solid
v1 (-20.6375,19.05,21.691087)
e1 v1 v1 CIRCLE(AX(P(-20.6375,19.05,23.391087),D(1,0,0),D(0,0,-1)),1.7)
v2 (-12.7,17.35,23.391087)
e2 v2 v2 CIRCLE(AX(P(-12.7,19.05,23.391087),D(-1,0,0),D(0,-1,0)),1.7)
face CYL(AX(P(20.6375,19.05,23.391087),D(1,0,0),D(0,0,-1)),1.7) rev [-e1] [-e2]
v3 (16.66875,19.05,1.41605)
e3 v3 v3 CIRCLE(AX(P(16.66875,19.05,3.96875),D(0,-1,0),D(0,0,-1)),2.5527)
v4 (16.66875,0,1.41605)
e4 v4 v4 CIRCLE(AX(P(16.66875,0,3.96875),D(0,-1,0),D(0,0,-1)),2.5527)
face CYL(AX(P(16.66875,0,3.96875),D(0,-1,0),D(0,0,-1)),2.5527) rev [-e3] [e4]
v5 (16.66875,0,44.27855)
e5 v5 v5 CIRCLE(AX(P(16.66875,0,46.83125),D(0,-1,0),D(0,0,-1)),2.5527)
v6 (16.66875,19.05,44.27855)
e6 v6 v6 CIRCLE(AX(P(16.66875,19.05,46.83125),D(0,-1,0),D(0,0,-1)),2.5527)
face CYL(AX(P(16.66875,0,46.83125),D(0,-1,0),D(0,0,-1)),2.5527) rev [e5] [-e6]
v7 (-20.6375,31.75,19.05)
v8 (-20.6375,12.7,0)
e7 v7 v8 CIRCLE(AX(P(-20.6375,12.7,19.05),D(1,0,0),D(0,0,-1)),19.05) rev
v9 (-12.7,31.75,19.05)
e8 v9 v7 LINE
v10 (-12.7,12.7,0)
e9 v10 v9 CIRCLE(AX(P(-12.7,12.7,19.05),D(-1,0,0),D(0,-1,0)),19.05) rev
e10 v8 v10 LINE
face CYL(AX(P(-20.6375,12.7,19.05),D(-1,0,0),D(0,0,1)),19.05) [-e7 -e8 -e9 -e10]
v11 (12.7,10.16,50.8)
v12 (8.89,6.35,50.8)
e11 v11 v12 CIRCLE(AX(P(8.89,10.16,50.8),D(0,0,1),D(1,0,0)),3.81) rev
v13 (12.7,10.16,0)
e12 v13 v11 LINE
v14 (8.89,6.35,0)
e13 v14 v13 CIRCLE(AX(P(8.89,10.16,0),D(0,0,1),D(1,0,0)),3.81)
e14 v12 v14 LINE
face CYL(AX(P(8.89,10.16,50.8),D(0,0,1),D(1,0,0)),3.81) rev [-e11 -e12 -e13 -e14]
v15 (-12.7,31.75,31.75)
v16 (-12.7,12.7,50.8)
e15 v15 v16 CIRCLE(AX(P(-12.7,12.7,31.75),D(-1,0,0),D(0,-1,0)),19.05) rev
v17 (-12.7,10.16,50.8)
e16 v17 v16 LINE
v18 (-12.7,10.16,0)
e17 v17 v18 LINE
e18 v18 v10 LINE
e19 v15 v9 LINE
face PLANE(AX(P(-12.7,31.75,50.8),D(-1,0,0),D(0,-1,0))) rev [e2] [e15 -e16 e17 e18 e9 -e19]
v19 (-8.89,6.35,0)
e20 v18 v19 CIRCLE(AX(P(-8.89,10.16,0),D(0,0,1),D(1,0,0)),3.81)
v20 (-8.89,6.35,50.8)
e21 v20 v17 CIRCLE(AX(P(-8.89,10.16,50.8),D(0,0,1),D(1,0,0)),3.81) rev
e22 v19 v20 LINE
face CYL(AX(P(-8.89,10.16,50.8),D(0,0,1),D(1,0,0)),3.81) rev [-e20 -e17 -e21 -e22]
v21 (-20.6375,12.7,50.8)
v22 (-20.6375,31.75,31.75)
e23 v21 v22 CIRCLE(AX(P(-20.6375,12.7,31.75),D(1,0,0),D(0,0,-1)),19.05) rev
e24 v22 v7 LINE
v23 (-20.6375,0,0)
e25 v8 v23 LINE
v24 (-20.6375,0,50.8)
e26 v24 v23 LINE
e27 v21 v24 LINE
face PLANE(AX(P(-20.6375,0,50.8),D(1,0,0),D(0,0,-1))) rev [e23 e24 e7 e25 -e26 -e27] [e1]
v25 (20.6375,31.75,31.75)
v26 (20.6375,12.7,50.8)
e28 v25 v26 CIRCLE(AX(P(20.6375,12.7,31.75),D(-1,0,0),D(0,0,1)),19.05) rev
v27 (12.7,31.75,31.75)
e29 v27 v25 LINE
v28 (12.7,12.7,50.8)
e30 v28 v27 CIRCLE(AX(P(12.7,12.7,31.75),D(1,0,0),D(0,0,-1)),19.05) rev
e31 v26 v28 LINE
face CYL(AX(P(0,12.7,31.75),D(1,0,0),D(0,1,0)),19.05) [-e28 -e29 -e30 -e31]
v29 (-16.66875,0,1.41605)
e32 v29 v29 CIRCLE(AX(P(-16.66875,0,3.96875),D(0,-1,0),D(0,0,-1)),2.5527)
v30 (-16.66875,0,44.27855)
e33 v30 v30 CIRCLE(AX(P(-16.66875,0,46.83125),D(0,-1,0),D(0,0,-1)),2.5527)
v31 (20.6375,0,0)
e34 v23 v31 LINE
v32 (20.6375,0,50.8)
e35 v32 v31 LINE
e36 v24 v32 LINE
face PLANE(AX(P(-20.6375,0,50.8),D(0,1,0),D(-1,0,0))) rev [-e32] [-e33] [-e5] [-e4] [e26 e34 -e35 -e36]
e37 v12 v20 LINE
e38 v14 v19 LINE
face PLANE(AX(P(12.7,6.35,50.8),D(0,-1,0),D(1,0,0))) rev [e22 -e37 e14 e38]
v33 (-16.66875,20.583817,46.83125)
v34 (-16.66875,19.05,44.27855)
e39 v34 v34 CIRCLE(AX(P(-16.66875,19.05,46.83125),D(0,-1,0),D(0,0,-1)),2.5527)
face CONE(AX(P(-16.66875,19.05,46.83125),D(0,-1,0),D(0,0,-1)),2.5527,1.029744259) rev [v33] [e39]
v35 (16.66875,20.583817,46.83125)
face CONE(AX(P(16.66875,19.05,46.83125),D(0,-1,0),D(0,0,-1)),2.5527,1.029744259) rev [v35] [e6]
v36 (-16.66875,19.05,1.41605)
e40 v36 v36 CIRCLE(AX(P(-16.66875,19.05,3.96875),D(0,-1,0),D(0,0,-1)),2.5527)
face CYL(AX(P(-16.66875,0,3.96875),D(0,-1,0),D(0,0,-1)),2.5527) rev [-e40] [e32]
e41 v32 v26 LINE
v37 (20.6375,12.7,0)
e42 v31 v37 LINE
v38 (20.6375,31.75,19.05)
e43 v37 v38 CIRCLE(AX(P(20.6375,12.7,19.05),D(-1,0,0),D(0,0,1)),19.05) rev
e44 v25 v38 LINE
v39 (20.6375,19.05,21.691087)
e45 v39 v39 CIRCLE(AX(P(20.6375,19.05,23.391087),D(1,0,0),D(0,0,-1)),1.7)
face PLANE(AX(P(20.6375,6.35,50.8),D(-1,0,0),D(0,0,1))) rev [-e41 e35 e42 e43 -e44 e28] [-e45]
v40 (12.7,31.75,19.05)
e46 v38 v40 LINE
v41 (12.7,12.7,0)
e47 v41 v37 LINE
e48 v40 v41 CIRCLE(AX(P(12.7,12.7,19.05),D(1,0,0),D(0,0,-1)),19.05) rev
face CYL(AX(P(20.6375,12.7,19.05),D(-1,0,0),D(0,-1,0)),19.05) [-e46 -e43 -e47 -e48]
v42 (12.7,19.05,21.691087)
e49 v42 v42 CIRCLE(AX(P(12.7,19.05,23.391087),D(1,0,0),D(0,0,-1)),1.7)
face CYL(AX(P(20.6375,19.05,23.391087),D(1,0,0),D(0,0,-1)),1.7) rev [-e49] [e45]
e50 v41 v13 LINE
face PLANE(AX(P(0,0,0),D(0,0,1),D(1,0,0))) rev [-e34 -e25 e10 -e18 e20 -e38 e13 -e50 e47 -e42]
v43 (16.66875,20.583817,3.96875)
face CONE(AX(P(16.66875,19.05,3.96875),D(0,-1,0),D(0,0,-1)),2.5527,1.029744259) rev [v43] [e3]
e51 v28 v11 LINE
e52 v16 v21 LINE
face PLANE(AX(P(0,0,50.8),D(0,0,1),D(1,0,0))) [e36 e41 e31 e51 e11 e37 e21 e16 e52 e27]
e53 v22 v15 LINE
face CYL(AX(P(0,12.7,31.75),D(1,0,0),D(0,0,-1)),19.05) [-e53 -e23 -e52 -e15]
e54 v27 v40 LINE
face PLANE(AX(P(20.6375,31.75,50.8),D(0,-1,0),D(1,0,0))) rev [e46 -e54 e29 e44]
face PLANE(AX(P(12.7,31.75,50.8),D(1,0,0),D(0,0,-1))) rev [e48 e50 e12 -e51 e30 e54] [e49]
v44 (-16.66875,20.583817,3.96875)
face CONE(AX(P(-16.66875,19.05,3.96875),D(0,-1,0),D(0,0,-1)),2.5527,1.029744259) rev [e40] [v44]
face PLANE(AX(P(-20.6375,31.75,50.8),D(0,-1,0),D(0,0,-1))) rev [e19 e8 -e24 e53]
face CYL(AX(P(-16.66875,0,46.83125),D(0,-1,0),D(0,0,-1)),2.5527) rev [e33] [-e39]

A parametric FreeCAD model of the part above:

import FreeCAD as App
import Part
import Sketcher
from FreeCAD import Vector
Q = App.Units.Quantity


def edges_at(feature, points):
    """Names of the edges that pass closest to the given points."""
    edges = feature.Shape.Edges
    near = lambda p: min(range(len(edges)), key=lambda i: edges[i].distToShape(Part.Vertex(*p))[0])
    return sorted({f"Edge{near(p) + 1}" for p in points})

doc = App.newDocument("Part")
body = doc.addObject("PartDesign::Body", "Body")

sketch1 = body.newObject("Sketcher::SketchObject", "Sketch")
sketch1.AttachmentSupport = (doc.getObject("XY_Plane"), [""])
sketch1.MapMode = "FlatFace"
sketch1.addGeometry(Part.LineSegment(Vector(-21, 0, 0), Vector(21, 0, 0)), False)
sketch1.addGeometry(Part.LineSegment(Vector(21, 0, 0), Vector(21, 32, 0)), False)
sketch1.addGeometry(Part.LineSegment(Vector(21, 32, 0), Vector(13, 32, 0)), False)
sketch1.addGeometry(Part.LineSegment(Vector(13, 32, 0), Vector(13, 6, 0)), False)
sketch1.addGeometry(Part.LineSegment(Vector(13, 6, 0), Vector(-13, 6, 0)), False)
sketch1.addGeometry(Part.LineSegment(Vector(-13, 6, 0), Vector(-13, 32, 0)), False)
sketch1.addGeometry(Part.LineSegment(Vector(-13, 32, 0), Vector(-21, 32, 0)), False)
sketch1.addGeometry(Part.LineSegment(Vector(-21, 32, 0), Vector(-21, 0, 0)), False)
sketch1.addConstraint(Sketcher.Constraint("Coincident", 0, 2, 1, 1))
sketch1.addConstraint(Sketcher.Constraint("Coincident", 1, 2, 2, 1))
sketch1.addConstraint(Sketcher.Constraint("Coincident", 2, 2, 3, 1))
sketch1.addConstraint(Sketcher.Constraint("Coincident", 3, 2, 4, 1))
sketch1.addConstraint(Sketcher.Constraint("Coincident", 4, 2, 5, 1))
sketch1.addConstraint(Sketcher.Constraint("Coincident", 5, 2, 6, 1))
sketch1.addConstraint(Sketcher.Constraint("Coincident", 6, 2, 7, 1))
sketch1.addConstraint(Sketcher.Constraint("Coincident", 7, 2, 0, 1))
sketch1.addConstraint(Sketcher.Constraint("Horizontal", 0))
sketch1.addConstraint(Sketcher.Constraint("Vertical", 1))
sketch1.addConstraint(Sketcher.Constraint("Horizontal", 2))
sketch1.addConstraint(Sketcher.Constraint("Vertical", 3))
sketch1.addConstraint(Sketcher.Constraint("Horizontal", 4))
sketch1.addConstraint(Sketcher.Constraint("Vertical", 5))
sketch1.addConstraint(Sketcher.Constraint("Horizontal", 6))
sketch1.addConstraint(Sketcher.Constraint("Vertical", 7))
sketch1.addConstraint(Sketcher.Constraint("Symmetric", 0, 2, 7, 2, -1, 1))
sketch1.addConstraint(Sketcher.Constraint("Symmetric", 2, 2, 5, 2, -2))
sketch1.addConstraint(Sketcher.Constraint("Equal", 4, 3))
sketch1.addConstraint(Sketcher.Constraint("DistanceX", 4, 2, 4, 1, Q("1 in")))
sketch1.addConstraint(Sketcher.Constraint("DistanceY", 1, 1, 1, 2, Q("1.25 in")))
sketch1.addConstraint(Sketcher.Constraint("DistanceX", 0, 1, 0, 2, Q("1.625 in")))
pad1 = body.newObject("PartDesign::Pad", "Pad")
pad1.Profile = sketch1
pad1.Length = Q("2 in")
doc.recompute()

fillet = body.newObject("PartDesign::Fillet", "Fillet")
fillet.Base = (pad1, edges_at(pad1, [
    (-16.669, 31.75, 0),
    (16.669, 31.75, 50.8),
    (16.669, 31.75, 0),
    (-16.669, 31.75, 50.8),
]))
fillet.Radius = Q("0.75 in")
doc.recompute()

fillet2 = body.newObject("PartDesign::Fillet", "Fillet001")
fillet2.Base = (fillet, edges_at(fillet, [(-12.7, 6.35, 25.4), (12.7, 6.35, 25.4)]))
fillet2.Radius = Q("0.15 in")

sketch2 = body.newObject("Sketcher::SketchObject", "Sketch001")
sketch2.AttachmentSupport = (doc.getObject("XZ_Plane"), [""])
sketch2.MapMode = "FlatFace"
sketch2.addGeometry(Part.Circle(Vector(16.7, 4, 0), Vector(0, 0, 1), 2.6), False)
sketch2.addGeometry(Part.Circle(Vector(-16.7, 4, 0), Vector(0, 0, 1), 2.6), False)
sketch2.addGeometry(Part.Circle(Vector(-16.7, 46.8, 0), Vector(0, 0, 1), 2.6), False)
sketch2.addGeometry(Part.Circle(Vector(16.7, 46.8, 0), Vector(0, 0, 1), 2.6), False)
sketch2.addConstraint(Sketcher.Constraint("Equal", 0, 1))
sketch2.addConstraint(Sketcher.Constraint("Equal", 1, 2))
sketch2.addConstraint(Sketcher.Constraint("Equal", 2, 3))
sketch2.addConstraint(Sketcher.Constraint("Symmetric", 0, 3, 1, 3, -2))
sketch2.addConstraint(Sketcher.Constraint("Symmetric", 2, 3, 3, 3, -2))
sketch2.addConstraint(Sketcher.Constraint("Vertical", 1, 3, 2, 3))
sketch2.addConstraint(Sketcher.Constraint("Diameter", 0, Q("0.201 in")))
sketch2.addConstraint(Sketcher.Constraint("DistanceX", -1, 1, 0, 3, Q("0.65625 in")))
sketch2.addConstraint(Sketcher.Constraint("DistanceY", -1, 1, 0, 3, Q("0.15625 in")))
sketch2.addConstraint(Sketcher.Constraint("DistanceY", -1, 1, 2, 3, Q("1.84375 in")))
doc.recompute()
hole = body.newObject("PartDesign::Hole", "Hole")
hole.Profile = sketch2
hole.ThreadType = "None"
hole.Diameter = Q("0.201 in")
hole.DepthType = "Dimension"
hole.Depth = Q("0.75 in")
hole.DrillPoint = "Angled"
hole.DrillPointAngle = 118

sketch3 = body.newObject("Sketcher::SketchObject", "Sketch002")
sketch3.AttachmentSupport = (doc.getObject("YZ_Plane"), [""])
sketch3.MapMode = "FlatFace"
sketch3.AttachmentOffset = App.Placement(Vector(0, 0, 0.8125 * 25.4), App.Rotation())
sketch3.addGeometry(Part.Circle(Vector(19.1, 23.4, 0), Vector(0, 0, 1), 1.7), False)
sketch3.addConstraint(Sketcher.Constraint("Diameter", 0, Q("3.4 mm")))
sketch3.addConstraint(Sketcher.Constraint("DistanceX", -1, 1, 0, 3, Q("0.75 in")))
sketch3.addConstraint(Sketcher.Constraint("DistanceY", -1, 1, 0, 3, Q("23.391087 mm")))
doc.recompute()
hole2 = body.newObject("PartDesign::Hole", "Hole001")
hole2.Profile = sketch3
hole2.ThreadType = "None"
hole2.Diameter = 3.4
hole2.DepthType = "ThroughAll"

doc.recompute()
